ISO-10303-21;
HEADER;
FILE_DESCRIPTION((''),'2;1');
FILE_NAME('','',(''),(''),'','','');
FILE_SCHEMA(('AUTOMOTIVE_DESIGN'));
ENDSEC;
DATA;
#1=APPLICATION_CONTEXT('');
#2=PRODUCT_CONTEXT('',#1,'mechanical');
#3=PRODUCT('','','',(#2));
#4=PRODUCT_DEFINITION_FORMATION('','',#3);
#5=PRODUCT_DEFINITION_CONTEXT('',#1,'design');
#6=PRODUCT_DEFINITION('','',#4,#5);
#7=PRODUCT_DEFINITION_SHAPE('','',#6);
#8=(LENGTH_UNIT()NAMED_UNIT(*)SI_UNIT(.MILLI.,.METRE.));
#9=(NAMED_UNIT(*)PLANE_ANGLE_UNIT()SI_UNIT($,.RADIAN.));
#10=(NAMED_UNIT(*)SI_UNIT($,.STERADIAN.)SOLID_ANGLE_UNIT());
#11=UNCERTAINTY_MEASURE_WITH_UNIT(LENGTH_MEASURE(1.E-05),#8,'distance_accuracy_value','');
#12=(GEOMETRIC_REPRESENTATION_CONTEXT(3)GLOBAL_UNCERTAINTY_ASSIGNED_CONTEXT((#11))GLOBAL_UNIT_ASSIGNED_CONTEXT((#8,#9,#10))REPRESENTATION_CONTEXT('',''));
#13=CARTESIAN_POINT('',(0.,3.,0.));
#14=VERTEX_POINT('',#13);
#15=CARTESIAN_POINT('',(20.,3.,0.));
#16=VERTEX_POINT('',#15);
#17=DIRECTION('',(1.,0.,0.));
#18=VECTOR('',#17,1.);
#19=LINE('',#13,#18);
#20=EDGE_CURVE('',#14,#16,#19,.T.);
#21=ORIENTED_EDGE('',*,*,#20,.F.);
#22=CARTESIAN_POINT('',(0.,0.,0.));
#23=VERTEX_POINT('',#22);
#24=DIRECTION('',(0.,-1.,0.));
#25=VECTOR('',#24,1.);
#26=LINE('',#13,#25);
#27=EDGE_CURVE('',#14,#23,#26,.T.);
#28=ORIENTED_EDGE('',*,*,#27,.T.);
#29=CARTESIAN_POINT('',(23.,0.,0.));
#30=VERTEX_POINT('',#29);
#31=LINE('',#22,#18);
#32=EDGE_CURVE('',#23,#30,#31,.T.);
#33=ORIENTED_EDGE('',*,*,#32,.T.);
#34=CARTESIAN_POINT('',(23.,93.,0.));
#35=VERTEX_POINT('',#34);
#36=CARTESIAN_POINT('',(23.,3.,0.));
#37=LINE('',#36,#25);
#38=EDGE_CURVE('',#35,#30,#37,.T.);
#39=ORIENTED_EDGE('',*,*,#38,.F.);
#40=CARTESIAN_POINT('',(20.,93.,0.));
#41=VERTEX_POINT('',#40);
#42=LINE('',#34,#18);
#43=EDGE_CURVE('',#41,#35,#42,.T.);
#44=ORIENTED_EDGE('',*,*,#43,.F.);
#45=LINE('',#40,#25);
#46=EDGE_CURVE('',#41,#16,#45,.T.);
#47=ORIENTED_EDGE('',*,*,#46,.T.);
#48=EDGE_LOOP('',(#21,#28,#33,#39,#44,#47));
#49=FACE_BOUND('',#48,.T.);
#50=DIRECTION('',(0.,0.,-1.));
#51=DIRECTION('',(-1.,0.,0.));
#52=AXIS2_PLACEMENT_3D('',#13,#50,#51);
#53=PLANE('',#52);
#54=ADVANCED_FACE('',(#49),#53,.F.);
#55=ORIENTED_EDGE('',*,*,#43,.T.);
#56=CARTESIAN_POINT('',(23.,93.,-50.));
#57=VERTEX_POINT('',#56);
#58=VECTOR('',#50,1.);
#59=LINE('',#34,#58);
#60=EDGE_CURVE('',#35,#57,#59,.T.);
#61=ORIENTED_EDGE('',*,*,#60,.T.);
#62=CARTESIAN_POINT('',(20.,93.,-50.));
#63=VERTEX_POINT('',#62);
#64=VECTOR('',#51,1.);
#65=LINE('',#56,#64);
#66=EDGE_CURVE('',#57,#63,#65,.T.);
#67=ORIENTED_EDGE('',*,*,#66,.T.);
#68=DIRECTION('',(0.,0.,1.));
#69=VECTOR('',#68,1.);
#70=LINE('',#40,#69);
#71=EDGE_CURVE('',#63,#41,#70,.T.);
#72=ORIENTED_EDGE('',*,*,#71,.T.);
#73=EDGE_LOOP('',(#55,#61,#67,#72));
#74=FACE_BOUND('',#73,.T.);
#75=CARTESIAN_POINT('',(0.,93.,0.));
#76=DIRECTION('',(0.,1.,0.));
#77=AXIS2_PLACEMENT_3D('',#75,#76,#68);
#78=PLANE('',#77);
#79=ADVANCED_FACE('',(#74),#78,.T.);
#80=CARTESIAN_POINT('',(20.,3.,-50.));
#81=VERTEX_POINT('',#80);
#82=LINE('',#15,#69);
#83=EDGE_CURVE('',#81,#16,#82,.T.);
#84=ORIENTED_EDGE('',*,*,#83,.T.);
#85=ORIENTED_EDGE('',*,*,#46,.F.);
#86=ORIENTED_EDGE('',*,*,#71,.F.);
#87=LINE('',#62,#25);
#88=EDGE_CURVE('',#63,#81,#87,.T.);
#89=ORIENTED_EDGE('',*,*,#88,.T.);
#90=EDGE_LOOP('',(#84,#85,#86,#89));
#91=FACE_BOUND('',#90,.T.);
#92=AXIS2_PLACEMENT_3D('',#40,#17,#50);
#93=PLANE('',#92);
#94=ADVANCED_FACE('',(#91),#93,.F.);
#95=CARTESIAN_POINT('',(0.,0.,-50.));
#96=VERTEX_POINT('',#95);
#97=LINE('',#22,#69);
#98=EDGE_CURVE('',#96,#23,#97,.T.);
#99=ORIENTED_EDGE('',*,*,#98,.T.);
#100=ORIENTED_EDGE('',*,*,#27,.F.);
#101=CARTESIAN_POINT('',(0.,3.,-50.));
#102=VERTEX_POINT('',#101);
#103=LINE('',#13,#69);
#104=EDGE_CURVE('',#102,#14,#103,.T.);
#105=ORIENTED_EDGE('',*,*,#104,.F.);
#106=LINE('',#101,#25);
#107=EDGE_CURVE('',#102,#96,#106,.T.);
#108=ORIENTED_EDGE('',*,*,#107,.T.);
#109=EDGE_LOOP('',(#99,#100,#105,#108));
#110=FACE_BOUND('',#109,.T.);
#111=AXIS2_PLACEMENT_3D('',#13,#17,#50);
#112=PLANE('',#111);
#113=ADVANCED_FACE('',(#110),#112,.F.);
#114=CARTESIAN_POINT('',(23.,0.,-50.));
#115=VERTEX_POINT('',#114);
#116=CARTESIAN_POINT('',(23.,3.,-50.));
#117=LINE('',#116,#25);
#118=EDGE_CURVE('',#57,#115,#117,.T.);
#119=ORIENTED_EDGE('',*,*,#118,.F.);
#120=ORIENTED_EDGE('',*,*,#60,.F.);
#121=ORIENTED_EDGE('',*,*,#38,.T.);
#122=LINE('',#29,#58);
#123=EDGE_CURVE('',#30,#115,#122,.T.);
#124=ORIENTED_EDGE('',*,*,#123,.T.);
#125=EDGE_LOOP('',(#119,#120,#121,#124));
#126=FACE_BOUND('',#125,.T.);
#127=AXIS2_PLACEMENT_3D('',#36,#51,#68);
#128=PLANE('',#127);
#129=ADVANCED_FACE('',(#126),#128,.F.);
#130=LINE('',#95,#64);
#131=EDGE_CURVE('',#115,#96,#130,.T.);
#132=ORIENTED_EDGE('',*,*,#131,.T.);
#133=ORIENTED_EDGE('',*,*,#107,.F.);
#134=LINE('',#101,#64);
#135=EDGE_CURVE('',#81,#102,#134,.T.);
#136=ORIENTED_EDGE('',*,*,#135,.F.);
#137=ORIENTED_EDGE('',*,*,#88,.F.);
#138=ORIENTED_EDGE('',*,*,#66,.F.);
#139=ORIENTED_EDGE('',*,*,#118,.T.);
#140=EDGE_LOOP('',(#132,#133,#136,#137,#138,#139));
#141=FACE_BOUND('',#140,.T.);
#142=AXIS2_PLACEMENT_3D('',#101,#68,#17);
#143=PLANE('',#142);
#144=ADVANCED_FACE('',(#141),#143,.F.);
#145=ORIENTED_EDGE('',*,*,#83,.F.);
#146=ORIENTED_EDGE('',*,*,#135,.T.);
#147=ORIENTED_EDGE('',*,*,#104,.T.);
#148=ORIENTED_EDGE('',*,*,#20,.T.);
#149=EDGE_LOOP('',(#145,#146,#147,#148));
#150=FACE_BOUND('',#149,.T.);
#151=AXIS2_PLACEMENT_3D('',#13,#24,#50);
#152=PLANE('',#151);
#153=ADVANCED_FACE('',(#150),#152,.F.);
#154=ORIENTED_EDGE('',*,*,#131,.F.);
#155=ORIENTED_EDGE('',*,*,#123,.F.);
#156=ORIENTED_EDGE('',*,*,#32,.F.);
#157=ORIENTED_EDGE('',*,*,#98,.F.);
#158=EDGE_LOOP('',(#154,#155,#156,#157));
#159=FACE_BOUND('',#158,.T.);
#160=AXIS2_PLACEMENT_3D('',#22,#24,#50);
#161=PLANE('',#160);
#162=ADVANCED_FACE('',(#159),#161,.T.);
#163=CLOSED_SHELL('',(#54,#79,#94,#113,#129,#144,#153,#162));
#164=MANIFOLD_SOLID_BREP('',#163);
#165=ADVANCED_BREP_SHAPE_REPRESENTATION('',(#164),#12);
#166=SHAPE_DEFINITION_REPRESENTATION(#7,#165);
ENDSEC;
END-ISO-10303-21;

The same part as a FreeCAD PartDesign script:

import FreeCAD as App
import Part
import Sketcher

V = App.Vector

doc = App.newDocument("Part")
body = doc.addObject("PartDesign::Body", "Body")

sketch1 = doc.addObject("Sketcher::SketchObject", "Sketch")
body.addObject(sketch1)
sketch1.AttachmentSupport = (doc.XZ_Plane, [""])
sketch1.MapMode = "FlatFace"
sketch1.addGeometry([
    Part.LineSegment(V(0, -50, 0), V(0, 0, 0)),
    Part.LineSegment(V(0, 0, 0), V(23, 0, 0)),
    Part.LineSegment(V(23, 0, 0), V(23, -50, 0)),
    Part.LineSegment(V(23, -50, 0), V(0, -50, 0)),
], False)
sketch1.addConstraint([
    Sketcher.Constraint("Coincident", 0, 2, 1, 1),
    Sketcher.Constraint("Coincident", 1, 2, 2, 1),
    Sketcher.Constraint("Coincident", 2, 2, 3, 1),
    Sketcher.Constraint("Coincident", 3, 2, 0, 1),
    Sketcher.Constraint("Vertical", 0),
    Sketcher.Constraint("Horizontal", 1),
    Sketcher.Constraint("Vertical", 2),
    Sketcher.Constraint("Horizontal", 3),
    Sketcher.Constraint("Coincident", 0, 2, -1, 1),
    Sketcher.Constraint("DistanceX", 1, 1, 1, 2, 23.0),
    Sketcher.Constraint("DistanceY", 0, 1, 0, 2, 50.0),
])
pad1 = doc.addObject("PartDesign::Pad", "Pad")
body.addObject(pad1)
pad1.Profile = sketch1
pad1.Length = 3
pad1.Reversed = True

sketch2 = doc.addObject("Sketcher::SketchObject", "Sketch001")
body.addObject(sketch2)
sketch2.AttachmentSupport = (doc.XZ_Plane, [""])
sketch2.MapMode = "FlatFace"
sketch2.AttachmentOffset = App.Placement(V(0, 0, -3), App.Rotation())
sketch2.addGeometry([
    Part.LineSegment(V(20, -50, 0), V(20, 0, 0)),
    Part.LineSegment(V(20, 0, 0), V(23, 0, 0)),
    Part.LineSegment(V(23, 0, 0), V(23, -50, 0)),
    Part.LineSegment(V(23, -50, 0), V(20, -50, 0)),
], False)
sketch2.addConstraint([
    Sketcher.Constraint("Coincident", 0, 2, 1, 1),
    Sketcher.Constraint("Coincident", 1, 2, 2, 1),
    Sketcher.Constraint("Coincident", 2, 2, 3, 1),
    Sketcher.Constraint("Coincident", 3, 2, 0, 1),
    Sketcher.Constraint("Vertical", 0),
    Sketcher.Constraint("Horizontal", 1),
    Sketcher.Constraint("Vertical", 2),
    Sketcher.Constraint("Horizontal", 3),
    Sketcher.Constraint("PointOnObject", 0, 2, -1),
    Sketcher.Constraint("DistanceX", 1, 1, 1, 2, 3.0),
    Sketcher.Constraint("DistanceY", 0, 1, 0, 2, 50.0),
    Sketcher.Constraint("DistanceX", -1, 1, 0, 2, 20.0),
])
pad2 = doc.addObject("PartDesign::Pad", "Pad001")
body.addObject(pad2)
pad2.Profile = sketch2
pad2.Length = 90
pad2.Reversed = True

doc.recompute()
